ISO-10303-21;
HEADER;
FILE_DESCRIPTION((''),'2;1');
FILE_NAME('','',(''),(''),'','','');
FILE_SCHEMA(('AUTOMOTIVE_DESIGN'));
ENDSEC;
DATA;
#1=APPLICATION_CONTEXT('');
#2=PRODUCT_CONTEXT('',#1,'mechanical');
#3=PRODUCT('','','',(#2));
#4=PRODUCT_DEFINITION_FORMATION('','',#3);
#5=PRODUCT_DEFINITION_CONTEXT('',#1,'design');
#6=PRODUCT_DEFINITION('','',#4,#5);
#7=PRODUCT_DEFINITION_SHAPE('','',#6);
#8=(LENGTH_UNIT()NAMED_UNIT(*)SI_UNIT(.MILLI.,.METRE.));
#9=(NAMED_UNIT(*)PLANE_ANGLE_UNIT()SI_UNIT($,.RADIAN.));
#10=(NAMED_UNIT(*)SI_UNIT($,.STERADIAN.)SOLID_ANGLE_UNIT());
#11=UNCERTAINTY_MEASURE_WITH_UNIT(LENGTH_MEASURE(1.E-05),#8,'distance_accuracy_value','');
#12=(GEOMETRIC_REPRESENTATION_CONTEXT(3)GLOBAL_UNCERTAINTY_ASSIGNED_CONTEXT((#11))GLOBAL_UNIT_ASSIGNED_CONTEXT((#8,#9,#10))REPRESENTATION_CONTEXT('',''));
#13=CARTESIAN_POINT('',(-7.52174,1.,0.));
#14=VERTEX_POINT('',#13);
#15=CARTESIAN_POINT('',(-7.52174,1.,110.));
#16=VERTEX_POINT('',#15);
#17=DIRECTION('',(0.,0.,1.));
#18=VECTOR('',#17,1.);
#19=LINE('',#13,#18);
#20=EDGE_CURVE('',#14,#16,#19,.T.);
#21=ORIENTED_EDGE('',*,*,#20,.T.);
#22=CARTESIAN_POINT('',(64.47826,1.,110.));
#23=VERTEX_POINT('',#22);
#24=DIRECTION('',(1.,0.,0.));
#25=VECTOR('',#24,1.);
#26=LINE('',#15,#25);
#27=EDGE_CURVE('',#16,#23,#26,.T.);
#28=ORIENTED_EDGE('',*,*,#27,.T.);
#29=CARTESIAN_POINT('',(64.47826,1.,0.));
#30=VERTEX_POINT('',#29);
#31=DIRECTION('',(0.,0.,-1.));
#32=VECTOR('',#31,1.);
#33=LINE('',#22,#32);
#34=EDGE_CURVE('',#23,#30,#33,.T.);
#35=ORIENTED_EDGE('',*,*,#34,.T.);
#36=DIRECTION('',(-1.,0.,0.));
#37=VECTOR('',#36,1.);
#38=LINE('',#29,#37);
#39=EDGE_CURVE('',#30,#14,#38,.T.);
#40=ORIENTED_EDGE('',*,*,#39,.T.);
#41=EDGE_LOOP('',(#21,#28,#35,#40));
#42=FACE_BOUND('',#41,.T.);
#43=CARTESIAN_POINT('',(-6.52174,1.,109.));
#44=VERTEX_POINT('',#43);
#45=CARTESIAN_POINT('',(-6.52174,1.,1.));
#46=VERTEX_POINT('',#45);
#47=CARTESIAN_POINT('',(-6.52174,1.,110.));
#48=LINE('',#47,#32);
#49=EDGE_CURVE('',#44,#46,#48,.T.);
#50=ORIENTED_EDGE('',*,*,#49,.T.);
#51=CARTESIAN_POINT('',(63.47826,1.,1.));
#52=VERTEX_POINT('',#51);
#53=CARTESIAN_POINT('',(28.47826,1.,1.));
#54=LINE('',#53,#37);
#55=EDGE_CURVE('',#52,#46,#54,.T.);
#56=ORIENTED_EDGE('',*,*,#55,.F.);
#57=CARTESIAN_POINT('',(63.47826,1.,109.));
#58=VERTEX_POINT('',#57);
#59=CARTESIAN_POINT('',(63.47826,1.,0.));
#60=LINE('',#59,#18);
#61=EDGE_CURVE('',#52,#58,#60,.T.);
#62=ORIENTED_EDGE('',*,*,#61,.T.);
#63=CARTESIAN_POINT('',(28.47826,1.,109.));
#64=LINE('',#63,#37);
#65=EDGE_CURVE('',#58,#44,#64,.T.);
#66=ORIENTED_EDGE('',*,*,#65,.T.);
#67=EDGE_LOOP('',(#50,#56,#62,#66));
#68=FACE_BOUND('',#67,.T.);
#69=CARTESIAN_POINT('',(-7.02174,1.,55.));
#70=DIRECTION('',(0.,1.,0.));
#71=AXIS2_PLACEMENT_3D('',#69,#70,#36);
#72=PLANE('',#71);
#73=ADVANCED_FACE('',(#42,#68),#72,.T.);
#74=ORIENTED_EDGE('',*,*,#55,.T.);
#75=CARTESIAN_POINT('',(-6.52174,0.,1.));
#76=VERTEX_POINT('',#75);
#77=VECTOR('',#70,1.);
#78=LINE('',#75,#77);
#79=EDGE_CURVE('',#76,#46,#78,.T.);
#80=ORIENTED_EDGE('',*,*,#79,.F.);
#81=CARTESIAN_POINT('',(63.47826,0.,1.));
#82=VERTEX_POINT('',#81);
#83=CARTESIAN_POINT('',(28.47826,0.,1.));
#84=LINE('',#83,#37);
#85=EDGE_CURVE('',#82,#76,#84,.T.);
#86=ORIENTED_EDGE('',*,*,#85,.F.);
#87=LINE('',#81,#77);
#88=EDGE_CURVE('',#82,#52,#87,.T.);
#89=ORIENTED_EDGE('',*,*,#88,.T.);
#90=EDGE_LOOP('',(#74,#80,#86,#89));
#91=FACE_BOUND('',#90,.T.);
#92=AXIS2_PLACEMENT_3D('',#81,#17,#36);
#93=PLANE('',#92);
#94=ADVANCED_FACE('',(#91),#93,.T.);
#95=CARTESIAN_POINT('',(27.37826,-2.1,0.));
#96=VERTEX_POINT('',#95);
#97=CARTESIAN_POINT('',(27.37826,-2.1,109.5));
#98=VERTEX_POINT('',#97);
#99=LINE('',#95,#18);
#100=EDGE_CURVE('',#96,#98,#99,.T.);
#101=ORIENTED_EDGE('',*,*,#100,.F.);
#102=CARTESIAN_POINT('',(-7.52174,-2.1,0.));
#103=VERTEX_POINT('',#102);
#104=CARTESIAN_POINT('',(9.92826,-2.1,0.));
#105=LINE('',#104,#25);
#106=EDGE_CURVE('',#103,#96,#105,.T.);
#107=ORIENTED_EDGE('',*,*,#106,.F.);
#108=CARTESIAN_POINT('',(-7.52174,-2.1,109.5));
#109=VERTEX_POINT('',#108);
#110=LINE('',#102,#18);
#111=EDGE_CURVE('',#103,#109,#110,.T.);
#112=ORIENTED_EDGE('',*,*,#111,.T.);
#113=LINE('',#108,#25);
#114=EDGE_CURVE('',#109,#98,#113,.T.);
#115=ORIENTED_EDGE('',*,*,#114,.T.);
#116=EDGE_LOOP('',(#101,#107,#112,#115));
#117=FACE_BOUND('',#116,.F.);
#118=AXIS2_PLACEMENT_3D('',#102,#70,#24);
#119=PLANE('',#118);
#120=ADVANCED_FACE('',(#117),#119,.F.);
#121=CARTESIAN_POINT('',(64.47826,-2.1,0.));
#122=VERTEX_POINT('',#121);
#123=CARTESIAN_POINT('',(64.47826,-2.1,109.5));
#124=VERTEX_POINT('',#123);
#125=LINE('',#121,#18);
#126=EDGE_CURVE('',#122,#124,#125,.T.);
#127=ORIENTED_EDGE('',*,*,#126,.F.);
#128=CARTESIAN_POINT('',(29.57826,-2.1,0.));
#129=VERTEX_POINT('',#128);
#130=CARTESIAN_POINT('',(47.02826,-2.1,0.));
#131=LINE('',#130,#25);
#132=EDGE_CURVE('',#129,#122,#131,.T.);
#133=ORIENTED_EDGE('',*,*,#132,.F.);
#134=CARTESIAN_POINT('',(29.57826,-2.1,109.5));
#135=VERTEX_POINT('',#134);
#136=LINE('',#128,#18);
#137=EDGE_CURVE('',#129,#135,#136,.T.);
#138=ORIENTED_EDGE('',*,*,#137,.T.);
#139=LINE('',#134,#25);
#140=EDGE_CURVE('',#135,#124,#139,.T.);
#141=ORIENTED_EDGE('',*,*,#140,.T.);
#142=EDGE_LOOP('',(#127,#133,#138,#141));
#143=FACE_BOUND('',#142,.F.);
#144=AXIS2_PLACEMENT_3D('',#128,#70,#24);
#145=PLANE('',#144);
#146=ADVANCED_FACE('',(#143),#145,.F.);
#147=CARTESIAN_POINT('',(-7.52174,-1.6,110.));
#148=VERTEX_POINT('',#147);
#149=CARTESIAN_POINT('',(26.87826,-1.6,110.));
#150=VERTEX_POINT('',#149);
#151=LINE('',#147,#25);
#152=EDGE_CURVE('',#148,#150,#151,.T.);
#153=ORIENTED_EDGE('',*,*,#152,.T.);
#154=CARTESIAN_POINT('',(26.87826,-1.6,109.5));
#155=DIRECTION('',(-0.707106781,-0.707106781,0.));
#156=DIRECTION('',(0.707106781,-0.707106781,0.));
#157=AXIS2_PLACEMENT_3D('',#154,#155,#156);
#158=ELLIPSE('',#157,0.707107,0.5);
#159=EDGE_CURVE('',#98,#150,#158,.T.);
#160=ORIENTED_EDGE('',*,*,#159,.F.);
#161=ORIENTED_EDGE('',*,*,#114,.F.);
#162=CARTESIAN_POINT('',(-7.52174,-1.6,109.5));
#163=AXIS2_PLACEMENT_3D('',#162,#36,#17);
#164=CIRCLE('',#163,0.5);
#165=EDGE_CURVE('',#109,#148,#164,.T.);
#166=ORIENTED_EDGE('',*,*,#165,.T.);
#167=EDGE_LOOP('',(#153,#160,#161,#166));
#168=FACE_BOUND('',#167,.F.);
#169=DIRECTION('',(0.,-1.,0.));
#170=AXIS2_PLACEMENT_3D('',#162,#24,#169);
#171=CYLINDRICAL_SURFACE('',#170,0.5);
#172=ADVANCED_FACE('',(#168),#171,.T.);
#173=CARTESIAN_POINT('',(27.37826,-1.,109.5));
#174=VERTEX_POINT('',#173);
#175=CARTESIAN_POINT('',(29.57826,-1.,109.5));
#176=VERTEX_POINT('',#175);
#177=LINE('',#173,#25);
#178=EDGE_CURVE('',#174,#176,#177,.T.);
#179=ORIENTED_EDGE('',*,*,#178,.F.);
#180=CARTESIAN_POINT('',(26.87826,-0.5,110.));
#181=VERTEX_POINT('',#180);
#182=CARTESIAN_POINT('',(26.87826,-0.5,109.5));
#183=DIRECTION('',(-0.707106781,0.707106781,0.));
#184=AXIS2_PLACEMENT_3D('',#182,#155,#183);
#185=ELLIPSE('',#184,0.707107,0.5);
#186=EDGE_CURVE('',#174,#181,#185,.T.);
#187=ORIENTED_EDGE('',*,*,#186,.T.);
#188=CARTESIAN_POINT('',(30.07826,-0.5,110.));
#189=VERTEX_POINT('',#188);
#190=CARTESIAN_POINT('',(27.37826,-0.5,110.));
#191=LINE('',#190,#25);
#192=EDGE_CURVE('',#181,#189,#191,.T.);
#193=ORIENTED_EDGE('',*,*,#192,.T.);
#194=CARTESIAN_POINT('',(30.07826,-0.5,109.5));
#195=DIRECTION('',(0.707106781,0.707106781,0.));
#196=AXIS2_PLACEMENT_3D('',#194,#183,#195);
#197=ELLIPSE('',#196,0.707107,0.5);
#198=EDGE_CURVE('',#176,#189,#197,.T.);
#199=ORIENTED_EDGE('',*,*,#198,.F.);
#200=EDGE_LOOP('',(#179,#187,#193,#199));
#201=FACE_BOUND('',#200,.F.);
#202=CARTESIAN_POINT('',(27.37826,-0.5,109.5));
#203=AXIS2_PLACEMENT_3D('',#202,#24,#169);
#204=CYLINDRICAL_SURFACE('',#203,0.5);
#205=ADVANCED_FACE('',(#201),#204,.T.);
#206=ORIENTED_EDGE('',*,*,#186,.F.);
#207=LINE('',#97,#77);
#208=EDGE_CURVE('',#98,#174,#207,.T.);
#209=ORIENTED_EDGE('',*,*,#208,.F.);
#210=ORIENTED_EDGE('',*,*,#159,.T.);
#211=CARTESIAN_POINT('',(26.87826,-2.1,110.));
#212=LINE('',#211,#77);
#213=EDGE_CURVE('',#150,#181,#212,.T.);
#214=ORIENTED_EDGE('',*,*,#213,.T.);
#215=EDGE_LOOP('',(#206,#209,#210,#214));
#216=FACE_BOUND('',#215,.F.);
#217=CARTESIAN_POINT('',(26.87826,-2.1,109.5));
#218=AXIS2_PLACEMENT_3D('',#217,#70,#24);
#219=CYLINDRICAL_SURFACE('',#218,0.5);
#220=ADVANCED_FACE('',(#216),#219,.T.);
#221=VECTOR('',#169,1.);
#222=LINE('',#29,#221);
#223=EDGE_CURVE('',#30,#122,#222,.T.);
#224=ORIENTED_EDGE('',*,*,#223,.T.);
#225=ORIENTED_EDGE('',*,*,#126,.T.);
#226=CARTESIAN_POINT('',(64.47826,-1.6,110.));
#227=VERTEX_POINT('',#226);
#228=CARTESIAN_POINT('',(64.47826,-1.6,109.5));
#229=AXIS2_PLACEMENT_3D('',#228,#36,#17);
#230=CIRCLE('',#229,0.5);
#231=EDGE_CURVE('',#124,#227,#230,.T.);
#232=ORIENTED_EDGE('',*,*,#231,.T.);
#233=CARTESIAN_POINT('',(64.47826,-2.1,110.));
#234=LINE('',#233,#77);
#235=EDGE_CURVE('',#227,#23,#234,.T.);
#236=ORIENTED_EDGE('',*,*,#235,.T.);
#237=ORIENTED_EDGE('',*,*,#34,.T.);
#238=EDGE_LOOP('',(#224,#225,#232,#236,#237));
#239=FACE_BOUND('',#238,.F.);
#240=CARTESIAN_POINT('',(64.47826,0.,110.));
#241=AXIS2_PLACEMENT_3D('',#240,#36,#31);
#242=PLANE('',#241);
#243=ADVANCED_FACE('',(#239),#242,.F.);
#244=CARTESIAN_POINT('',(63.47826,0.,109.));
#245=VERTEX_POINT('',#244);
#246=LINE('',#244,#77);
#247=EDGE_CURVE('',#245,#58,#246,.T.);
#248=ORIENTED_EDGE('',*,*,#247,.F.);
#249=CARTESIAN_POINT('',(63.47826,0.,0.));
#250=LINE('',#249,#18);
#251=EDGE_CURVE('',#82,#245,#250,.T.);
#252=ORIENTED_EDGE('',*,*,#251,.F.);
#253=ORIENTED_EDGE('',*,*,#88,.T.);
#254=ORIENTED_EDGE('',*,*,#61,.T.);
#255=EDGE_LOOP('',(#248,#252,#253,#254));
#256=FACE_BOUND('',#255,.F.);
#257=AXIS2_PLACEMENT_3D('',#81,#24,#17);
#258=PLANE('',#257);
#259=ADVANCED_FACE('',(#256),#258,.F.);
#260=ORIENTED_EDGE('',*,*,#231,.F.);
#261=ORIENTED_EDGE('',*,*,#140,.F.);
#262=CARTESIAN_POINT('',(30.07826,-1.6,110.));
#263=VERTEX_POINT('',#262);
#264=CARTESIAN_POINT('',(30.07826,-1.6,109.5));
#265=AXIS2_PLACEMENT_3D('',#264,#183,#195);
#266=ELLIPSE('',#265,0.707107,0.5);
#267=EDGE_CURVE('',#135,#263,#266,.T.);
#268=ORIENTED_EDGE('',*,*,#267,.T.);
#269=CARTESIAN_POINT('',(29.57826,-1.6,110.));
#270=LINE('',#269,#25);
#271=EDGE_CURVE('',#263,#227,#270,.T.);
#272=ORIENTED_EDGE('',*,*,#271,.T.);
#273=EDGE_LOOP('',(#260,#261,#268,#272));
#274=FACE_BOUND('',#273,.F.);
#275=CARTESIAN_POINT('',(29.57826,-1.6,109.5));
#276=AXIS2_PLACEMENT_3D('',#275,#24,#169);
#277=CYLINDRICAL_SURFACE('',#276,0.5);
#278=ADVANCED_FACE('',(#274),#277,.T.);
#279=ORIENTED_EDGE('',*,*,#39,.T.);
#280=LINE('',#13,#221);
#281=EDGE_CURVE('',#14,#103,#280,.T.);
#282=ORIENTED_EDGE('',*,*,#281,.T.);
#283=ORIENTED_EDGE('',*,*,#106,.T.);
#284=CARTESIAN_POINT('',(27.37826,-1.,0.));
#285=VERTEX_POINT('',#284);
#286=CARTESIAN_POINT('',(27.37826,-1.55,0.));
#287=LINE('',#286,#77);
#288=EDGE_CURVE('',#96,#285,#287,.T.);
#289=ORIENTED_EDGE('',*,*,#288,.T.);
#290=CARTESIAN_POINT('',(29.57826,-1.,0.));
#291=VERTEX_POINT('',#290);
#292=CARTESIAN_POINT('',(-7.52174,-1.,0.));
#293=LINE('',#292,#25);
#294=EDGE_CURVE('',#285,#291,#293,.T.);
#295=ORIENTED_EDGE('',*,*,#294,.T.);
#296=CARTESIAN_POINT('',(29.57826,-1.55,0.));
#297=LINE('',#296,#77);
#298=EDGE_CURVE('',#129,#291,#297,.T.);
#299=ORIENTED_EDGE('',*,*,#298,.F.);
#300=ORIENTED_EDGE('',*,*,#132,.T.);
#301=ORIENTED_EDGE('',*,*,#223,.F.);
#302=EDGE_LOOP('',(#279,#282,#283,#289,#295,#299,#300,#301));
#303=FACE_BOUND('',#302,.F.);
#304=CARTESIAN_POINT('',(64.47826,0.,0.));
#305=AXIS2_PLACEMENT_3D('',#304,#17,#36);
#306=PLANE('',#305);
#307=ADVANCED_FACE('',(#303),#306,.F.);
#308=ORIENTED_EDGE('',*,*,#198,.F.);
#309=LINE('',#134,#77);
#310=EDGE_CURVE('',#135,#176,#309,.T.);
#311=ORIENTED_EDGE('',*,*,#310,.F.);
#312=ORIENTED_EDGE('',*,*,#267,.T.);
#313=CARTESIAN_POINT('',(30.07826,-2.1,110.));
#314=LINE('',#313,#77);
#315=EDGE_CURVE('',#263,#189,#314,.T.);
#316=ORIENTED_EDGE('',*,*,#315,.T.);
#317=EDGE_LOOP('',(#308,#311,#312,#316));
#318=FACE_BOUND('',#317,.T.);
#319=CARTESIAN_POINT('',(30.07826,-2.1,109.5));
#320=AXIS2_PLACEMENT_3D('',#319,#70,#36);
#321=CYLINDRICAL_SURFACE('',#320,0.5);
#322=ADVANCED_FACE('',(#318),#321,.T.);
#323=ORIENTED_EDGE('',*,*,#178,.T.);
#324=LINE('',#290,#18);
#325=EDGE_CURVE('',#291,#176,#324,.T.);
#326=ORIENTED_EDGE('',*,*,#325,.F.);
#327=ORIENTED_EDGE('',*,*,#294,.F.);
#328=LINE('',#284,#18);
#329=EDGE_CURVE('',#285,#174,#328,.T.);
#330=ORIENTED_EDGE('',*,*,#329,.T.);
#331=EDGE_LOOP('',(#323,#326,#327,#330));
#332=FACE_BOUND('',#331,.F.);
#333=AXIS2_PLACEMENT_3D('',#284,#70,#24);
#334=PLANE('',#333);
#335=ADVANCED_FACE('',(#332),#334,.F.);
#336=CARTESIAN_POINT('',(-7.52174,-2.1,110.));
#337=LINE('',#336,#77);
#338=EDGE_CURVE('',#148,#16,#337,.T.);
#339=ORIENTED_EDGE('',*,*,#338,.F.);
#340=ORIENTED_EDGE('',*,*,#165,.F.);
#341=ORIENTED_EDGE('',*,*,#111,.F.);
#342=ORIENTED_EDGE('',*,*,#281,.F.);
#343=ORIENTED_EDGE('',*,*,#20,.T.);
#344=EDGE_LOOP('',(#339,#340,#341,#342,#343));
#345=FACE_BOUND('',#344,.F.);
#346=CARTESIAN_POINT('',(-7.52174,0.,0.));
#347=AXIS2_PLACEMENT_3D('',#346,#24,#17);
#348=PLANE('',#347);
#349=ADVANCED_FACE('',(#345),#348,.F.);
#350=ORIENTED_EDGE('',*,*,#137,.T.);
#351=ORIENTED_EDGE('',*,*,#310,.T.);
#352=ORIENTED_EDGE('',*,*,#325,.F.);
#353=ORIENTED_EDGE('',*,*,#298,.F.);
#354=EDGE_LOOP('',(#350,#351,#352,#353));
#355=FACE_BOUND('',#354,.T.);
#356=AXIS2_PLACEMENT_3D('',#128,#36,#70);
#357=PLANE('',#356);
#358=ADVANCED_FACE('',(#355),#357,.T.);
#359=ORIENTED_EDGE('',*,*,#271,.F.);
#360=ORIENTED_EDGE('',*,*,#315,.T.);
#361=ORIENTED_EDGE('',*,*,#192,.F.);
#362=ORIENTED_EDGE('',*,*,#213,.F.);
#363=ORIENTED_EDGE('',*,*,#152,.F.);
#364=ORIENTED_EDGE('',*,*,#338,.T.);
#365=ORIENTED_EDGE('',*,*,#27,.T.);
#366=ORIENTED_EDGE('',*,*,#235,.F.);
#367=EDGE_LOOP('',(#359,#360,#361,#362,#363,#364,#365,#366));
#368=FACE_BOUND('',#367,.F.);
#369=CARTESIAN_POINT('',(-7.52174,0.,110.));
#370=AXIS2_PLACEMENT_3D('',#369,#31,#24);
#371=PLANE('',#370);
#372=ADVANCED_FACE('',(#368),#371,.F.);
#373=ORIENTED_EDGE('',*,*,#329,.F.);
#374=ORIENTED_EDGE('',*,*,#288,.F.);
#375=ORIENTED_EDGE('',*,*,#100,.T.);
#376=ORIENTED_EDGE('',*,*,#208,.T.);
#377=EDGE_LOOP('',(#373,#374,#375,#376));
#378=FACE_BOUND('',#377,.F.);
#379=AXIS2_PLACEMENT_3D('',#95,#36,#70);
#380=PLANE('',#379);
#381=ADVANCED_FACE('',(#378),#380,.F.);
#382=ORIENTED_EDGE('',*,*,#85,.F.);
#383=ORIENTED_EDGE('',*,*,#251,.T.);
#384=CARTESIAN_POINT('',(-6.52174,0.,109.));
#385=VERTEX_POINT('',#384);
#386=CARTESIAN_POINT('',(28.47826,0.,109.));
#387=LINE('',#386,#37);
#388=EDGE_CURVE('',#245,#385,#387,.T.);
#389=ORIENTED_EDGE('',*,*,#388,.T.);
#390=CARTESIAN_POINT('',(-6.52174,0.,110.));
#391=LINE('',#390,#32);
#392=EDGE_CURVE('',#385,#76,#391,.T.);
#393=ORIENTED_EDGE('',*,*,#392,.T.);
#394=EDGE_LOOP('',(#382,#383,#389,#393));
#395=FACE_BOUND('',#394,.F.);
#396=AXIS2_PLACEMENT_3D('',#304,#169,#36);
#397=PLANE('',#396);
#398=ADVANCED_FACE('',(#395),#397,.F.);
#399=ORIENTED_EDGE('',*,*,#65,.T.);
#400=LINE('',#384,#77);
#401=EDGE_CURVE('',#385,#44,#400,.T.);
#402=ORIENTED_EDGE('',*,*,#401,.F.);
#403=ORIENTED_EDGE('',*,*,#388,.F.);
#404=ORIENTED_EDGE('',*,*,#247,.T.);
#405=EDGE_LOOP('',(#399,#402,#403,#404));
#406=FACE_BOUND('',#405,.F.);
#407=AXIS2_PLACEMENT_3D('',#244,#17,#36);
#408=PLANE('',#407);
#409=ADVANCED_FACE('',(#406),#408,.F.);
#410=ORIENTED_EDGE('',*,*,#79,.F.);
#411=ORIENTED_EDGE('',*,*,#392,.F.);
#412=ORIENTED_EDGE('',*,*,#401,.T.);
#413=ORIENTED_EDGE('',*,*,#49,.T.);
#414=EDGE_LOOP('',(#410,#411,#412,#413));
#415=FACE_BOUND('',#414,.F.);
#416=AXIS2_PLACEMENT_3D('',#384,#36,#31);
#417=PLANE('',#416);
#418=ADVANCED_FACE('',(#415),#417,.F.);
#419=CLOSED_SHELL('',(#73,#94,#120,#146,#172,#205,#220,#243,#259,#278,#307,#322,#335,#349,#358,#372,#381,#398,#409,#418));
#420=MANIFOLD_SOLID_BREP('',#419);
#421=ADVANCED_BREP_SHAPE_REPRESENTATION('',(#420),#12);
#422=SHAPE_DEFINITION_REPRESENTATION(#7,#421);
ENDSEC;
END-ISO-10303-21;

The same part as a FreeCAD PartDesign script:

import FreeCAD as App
import Part
import Sketcher
from FreeCAD import Vector
Q = App.Units.Quantity


def edges_at(feature, points):
    """Names of the edges that pass closest to the given points."""
    edges = feature.Shape.Edges
    near = lambda p: min(range(len(edges)), key=lambda i: edges[i].distToShape(Part.Vertex(*p))[0])
    return sorted({f"Edge{near(p) + 1}" for p in points})


def add_polygon(sketch, points):
    """Adds a closed chain of lines whose ends are joined by coincident constraints."""
    first, n = sketch.GeometryCount, len(points)
    for a, b in zip(points, points[1:] + points[:1]):
        sketch.addGeometry(Part.LineSegment(App.Vector(*a, 0), App.Vector(*b, 0)), False)
    for i in range(n):
        sketch.addConstraint(Sketcher.Constraint("Coincident", first + i, 2, first + (i + 1) % n, 1))

doc = App.newDocument("Part")
params = doc.addObject("Spreadsheet::Sheet", "Params")
for row, (alias, value) in enumerate([
    ("sketch1_width", "72 mm"),
    ("sketch1_width2", "34.9 mm"),
    ("sketch1_height", "2.1 mm"),
    ("sketch1_height2", "1.1 mm"),
    ("pad1_length", "110 mm"),
    ("sketch2_width", "72 mm"),
    ("sketch2_width2", "70 mm"),
    ("sketch2_height", "110 mm"),
    ("sketch2_height2", "108 mm"),
    ("pad2_length", "1 mm"),
    ("fillet_radius", "0.5 mm"),
], start=1):
    params.set(f"A{row}", alias)
    params.set(f"B{row}", "=" + value)
    params.setAlias(f"B{row}", alias)

body = doc.addObject("PartDesign::Body", "Body")

# Sketch on XY plane
sketch1 = body.newObject("Sketcher::SketchObject", "Sketch")
sketch1.AttachmentSupport = (doc.getObject("XY_Plane"), [""])
sketch1.MapMode = "FlatFace"
add_polygon(sketch1, [(64.5, 0), (-7.5, 0), (-7.5, -2.1), (27.4, -2.1), (27.4, -1), (29.6, -1), (29.6, -2.1), (64.5, -2.1)])  # lines 0-7
sketch1.addConstraint([
    Sketcher.Constraint("Horizontal", 0),
    Sketcher.Constraint("Vertical", 1),
    Sketcher.Constraint("Horizontal", 2),
    Sketcher.Constraint("Vertical", 3),
    Sketcher.Constraint("Horizontal", 4),
    Sketcher.Constraint("Vertical", 5),
    Sketcher.Constraint("Horizontal", 6),
    Sketcher.Constraint("Vertical", 7),
    Sketcher.Constraint("PointOnObject", 0, 2, -1),
    Sketcher.Constraint("Horizontal", 2, 2, 5, 2),
    Sketcher.Constraint("Equal", 2, 6),
    Sketcher.Constraint("DistanceX", 0, 2, 0, 1, Q("72 mm")),
    Sketcher.Constraint("DistanceX", 2, 1, 2, 2, Q("34.9 mm")),
    Sketcher.Constraint("DistanceY", 1, 2, 1, 1, Q("2.1 mm")),
    Sketcher.Constraint("DistanceY", 3, 1, 3, 2, Q("1.1 mm")),
    Sketcher.Constraint("DistanceX", 0, 2, -1, 1, Q("7.52174 mm")),
])
sketch1.setExpression("Constraints[19]", "Params.sketch1_width")
sketch1.setExpression("Constraints[20]", "Params.sketch1_width2")
sketch1.setExpression("Constraints[21]", "Params.sketch1_height")
sketch1.setExpression("Constraints[22]", "Params.sketch1_height2")
pad1 = body.newObject("PartDesign::Pad", "Pad")
pad1.Profile = sketch1
pad1.setExpression("Length", "Params.pad1_length")

# Sketch on XZ plane
sketch2 = body.newObject("Sketcher::SketchObject", "Sketch001")
sketch2.AttachmentSupport = (doc.getObject("XZ_Plane"), [""])
sketch2.MapMode = "FlatFace"
add_polygon(sketch2, [(-8, 0), (-8, 110), (64, 110), (64, 0)])  # lines 0-3
add_polygon(sketch2, [(63, 1), (63, 109), (-7, 109), (-7, 1)])  # lines 4-7
sketch2.addConstraint([
    Sketcher.Constraint("Vertical", 0),
    Sketcher.Constraint("Horizontal", 1),
    Sketcher.Constraint("Vertical", 2),
    Sketcher.Constraint("Horizontal", 3),
    Sketcher.Constraint("Vertical", 4),
    Sketcher.Constraint("Horizontal", 5),
    Sketcher.Constraint("Vertical", 6),
    Sketcher.Constraint("Horizontal", 7),
    Sketcher.Constraint("PointOnObject", 2, 2, -1),
    Sketcher.Constraint("DistanceX", 1, 1, 1, 2, Q("72 mm")),
    Sketcher.Constraint("DistanceX", 5, 2, 5, 1, Q("70 mm")),
    Sketcher.Constraint("DistanceY", 0, 1, 0, 2, Q("110 mm")),
    Sketcher.Constraint("DistanceY", 4, 1, 4, 2, Q("108 mm")),
    Sketcher.Constraint("DistanceY", -1, 1, 4, 2, Q("109 mm")),
    Sketcher.Constraint("DistanceX", 4, 2, 1, 2, Q("1 mm")),
    Sketcher.Constraint("DistanceX", 0, 2, -1, 1, Q("7.52174 mm")),
])
sketch2.setExpression("Constraints[17]", "Params.sketch2_width")
sketch2.setExpression("Constraints[18]", "Params.sketch2_width2")
sketch2.setExpression("Constraints[19]", "Params.sketch2_height")
sketch2.setExpression("Constraints[20]", "Params.sketch2_height2")
pad2 = body.newObject("PartDesign::Pad", "Pad001")
pad2.Profile = sketch2
pad2.setExpression("Length", "Params.pad2_length")
pad2.Reversed = True
doc.recompute()

fillet = body.newObject("PartDesign::Fillet", "Fillet")
fillet.Base = (pad2, edges_at(pad2, [
    (9.928, -2.1, 110),
    (29.578, -1.55, 110),
    (27.378, -1.55, 110),
    (28.478, -1, 110),
    (47.028, -2.1, 110),
]))
fillet.setExpression("Radius", "Params.fillet_radius")

doc.recompute()
